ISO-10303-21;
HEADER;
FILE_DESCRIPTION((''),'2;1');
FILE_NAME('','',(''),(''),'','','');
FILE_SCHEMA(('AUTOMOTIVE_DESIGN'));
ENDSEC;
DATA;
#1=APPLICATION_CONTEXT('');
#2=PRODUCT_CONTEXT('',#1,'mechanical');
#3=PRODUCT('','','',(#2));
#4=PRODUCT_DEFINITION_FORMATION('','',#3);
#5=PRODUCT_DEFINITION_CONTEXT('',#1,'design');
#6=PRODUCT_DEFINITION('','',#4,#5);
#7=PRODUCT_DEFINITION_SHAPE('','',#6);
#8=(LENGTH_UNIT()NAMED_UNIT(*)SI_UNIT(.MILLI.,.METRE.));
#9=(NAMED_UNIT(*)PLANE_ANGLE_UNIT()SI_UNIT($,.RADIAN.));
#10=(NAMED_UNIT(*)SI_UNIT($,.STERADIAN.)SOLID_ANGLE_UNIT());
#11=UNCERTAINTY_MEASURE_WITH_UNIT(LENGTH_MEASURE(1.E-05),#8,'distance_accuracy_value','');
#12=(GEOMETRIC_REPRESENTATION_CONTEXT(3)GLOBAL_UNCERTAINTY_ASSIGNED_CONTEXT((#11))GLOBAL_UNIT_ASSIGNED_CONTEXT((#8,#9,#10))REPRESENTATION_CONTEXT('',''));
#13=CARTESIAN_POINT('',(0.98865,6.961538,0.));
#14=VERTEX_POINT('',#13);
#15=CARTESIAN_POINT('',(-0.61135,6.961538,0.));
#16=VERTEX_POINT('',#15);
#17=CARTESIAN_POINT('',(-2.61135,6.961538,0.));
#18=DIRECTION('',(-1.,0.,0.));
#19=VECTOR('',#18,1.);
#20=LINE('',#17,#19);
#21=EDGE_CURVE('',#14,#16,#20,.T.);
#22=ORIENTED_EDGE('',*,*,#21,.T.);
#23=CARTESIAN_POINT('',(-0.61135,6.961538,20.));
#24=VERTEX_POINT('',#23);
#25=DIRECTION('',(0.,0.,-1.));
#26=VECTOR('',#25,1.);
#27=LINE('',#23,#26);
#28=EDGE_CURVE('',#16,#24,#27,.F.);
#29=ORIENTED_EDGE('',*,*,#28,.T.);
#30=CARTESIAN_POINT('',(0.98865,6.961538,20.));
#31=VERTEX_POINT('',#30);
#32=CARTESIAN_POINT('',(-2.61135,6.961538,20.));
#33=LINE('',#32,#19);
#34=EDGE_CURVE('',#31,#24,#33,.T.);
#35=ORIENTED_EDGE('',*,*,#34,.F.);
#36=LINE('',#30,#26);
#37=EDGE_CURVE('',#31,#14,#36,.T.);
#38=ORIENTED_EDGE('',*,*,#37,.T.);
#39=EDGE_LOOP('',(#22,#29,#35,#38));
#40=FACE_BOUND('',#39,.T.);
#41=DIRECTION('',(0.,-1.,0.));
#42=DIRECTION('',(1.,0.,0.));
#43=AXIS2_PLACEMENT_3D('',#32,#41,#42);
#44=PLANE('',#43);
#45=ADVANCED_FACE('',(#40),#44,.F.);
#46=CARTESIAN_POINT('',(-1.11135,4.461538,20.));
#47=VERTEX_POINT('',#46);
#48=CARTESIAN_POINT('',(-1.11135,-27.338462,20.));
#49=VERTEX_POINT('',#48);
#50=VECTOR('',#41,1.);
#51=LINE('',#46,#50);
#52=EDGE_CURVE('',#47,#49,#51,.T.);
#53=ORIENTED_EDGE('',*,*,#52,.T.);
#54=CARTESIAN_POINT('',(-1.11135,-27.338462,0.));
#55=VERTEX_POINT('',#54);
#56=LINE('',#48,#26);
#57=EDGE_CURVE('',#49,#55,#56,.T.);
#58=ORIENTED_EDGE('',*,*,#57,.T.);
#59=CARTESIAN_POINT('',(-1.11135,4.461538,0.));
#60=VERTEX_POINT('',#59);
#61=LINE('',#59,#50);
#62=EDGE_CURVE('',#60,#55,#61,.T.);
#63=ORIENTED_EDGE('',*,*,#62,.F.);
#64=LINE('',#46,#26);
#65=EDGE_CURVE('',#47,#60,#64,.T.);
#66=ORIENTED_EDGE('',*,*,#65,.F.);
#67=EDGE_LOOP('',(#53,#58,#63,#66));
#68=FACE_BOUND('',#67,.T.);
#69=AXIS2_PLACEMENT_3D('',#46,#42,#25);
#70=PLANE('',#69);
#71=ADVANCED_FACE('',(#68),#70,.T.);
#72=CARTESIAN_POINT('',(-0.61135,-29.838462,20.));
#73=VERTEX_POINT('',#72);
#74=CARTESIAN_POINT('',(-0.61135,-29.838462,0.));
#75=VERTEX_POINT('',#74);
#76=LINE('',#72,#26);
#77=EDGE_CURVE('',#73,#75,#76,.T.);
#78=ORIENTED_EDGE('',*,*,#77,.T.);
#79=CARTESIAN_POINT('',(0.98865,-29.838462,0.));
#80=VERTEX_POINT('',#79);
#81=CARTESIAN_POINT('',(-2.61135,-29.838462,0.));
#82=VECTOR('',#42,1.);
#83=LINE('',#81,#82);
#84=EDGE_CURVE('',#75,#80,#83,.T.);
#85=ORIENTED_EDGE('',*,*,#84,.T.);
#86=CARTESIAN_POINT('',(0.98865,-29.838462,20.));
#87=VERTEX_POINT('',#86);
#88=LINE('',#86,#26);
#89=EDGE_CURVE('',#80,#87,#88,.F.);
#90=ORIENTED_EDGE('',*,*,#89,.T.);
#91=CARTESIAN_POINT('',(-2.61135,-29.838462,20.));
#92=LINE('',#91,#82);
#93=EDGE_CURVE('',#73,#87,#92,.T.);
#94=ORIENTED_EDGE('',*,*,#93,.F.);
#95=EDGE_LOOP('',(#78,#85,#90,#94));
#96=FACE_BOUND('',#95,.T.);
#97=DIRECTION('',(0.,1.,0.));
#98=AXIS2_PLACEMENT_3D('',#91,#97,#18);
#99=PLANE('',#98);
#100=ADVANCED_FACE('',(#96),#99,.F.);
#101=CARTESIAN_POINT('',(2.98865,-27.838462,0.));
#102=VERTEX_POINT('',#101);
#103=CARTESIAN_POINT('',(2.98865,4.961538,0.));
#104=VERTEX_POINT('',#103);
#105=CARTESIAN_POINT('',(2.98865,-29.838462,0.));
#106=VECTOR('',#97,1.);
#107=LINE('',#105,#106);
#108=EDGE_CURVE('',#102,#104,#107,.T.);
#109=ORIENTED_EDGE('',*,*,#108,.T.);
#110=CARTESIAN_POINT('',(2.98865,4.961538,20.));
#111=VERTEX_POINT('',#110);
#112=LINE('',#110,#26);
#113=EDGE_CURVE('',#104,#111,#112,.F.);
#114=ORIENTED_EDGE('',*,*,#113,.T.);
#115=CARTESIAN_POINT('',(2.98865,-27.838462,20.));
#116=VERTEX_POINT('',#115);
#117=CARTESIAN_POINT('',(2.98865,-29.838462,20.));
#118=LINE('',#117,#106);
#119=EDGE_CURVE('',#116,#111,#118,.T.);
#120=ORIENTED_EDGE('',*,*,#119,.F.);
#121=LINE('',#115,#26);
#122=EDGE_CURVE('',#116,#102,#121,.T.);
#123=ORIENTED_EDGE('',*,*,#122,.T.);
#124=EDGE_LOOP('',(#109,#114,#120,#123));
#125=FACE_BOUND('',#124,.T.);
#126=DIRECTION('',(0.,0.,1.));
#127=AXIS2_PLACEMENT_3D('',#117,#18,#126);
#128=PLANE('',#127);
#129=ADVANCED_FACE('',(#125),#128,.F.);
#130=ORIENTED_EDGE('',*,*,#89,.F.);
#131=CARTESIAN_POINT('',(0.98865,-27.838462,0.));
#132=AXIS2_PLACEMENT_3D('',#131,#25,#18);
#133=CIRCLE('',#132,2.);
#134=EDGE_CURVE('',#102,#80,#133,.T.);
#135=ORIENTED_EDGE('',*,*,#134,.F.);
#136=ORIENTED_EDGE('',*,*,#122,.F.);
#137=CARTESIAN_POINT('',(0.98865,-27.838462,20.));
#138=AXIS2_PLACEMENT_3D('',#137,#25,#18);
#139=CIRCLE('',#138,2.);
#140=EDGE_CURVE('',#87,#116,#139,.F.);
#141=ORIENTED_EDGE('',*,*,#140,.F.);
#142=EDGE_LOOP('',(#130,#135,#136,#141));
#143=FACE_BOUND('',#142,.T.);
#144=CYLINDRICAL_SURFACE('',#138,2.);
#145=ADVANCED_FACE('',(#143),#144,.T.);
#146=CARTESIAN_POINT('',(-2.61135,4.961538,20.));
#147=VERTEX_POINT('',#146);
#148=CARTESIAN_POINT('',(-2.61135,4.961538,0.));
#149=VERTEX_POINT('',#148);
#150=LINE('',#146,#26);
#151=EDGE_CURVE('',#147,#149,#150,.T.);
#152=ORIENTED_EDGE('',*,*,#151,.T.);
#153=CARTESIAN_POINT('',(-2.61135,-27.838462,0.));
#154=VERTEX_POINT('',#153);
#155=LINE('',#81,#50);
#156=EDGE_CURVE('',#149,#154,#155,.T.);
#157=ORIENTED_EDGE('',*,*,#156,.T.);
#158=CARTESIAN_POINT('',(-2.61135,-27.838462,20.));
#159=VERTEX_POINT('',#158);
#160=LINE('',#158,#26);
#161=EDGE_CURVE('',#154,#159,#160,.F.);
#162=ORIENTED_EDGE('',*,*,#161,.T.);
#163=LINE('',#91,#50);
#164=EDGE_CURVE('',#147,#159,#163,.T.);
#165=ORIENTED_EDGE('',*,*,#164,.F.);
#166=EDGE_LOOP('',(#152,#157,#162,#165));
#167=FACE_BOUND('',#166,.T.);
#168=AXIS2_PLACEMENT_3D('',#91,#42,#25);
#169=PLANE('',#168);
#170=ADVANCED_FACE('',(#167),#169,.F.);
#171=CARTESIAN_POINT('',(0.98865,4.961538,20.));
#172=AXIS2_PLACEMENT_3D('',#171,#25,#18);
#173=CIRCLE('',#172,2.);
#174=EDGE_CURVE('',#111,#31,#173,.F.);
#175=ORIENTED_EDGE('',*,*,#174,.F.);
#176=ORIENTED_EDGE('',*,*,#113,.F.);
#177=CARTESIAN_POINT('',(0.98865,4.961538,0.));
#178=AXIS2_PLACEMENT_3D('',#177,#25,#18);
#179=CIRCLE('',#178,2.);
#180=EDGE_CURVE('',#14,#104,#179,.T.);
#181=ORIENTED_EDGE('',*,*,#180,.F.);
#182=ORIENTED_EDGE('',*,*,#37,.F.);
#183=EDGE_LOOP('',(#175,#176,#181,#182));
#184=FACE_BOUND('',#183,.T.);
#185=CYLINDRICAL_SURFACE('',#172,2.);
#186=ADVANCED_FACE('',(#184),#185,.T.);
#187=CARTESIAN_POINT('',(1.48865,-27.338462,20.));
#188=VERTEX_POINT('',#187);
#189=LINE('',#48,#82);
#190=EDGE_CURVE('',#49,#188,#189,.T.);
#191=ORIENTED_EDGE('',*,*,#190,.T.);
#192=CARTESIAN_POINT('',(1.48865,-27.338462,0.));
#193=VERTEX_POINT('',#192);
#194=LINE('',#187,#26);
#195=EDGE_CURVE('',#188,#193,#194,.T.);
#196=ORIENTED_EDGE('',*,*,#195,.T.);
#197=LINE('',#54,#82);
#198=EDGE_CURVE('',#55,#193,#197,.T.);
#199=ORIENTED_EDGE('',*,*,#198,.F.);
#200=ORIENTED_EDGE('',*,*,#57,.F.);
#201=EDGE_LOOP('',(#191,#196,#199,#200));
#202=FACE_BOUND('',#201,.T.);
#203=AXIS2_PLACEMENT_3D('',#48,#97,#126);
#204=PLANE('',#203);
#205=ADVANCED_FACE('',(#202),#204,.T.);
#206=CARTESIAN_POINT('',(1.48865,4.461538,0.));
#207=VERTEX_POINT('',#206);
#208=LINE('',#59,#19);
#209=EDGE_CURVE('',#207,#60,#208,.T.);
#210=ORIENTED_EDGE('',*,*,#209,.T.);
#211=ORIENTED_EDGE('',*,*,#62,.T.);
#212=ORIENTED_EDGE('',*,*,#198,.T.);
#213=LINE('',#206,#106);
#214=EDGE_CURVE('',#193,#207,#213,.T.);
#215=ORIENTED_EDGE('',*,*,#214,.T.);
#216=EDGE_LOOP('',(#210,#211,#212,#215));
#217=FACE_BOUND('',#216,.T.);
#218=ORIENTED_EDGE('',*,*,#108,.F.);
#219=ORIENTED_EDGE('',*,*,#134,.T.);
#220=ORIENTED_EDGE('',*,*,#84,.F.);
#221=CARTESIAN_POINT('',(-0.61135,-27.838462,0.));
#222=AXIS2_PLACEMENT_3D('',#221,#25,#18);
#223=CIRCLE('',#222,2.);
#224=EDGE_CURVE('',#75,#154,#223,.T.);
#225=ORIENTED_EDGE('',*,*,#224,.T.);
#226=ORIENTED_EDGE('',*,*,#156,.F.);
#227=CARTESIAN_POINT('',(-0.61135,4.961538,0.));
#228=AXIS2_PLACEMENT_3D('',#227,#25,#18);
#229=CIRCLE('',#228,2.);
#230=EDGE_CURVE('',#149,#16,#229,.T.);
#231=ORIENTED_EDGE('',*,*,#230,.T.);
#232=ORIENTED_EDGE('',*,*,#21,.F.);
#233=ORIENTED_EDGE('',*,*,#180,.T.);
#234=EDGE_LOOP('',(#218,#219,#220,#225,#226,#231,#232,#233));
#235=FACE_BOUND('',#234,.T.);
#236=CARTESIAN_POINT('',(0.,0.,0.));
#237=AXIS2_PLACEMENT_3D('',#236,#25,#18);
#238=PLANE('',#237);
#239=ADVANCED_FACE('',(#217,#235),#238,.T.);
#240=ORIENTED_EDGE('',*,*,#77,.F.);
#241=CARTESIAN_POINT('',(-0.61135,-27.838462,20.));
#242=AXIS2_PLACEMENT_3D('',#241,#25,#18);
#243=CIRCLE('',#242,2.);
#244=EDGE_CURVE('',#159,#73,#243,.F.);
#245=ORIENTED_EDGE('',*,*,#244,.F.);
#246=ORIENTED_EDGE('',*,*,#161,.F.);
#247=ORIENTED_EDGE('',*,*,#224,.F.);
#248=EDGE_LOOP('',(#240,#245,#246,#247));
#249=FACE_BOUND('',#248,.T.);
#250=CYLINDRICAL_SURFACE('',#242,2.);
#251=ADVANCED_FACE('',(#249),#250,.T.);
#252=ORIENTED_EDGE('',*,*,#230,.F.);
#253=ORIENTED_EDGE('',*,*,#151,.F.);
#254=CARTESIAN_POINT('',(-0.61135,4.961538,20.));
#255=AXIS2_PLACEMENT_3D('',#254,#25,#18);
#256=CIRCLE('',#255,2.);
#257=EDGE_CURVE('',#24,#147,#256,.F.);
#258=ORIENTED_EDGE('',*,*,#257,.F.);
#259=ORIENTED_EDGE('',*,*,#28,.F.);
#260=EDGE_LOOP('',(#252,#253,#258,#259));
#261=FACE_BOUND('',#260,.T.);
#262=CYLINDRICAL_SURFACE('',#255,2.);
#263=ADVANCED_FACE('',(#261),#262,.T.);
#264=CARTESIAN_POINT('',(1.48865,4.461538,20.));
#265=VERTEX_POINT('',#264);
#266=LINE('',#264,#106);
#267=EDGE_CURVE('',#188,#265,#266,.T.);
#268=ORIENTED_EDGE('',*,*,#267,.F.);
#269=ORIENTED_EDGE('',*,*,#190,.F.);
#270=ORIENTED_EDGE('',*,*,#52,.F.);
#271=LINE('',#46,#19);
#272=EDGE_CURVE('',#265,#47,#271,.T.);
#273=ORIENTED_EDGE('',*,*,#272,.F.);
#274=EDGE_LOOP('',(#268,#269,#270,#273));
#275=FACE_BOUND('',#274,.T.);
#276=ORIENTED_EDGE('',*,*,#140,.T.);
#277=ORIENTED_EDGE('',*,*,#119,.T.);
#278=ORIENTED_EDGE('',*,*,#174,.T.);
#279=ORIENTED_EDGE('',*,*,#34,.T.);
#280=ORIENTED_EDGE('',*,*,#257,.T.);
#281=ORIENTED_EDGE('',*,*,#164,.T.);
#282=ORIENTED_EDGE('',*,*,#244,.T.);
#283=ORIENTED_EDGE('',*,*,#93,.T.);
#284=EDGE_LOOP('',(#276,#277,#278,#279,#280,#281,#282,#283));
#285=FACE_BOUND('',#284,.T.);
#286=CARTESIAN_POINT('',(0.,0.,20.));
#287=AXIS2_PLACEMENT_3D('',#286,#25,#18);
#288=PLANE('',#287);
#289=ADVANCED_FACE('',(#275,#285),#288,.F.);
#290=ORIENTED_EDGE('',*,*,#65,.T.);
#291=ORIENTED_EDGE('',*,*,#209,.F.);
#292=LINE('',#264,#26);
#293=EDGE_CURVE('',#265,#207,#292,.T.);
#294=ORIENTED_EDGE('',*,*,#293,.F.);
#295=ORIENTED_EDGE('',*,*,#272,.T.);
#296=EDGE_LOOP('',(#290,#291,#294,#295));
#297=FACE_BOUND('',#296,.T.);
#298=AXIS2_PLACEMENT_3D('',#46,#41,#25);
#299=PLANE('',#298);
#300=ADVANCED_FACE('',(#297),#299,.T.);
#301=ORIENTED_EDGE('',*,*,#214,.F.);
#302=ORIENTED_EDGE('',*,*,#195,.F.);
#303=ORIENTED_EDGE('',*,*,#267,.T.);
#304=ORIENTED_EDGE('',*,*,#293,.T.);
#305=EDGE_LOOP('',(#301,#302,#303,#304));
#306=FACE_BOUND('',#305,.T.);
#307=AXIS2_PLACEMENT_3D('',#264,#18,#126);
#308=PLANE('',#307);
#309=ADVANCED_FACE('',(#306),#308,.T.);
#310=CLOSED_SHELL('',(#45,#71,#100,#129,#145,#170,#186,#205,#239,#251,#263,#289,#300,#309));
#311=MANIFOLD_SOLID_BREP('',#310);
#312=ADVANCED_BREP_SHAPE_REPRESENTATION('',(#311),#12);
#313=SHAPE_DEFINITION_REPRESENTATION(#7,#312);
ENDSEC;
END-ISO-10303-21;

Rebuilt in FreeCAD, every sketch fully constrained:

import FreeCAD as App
import Part
import Sketcher
from FreeCAD import Vector


def edges_at(feature, points):
    """Names of the edges that pass closest to the given points."""
    edges = feature.Shape.Edges
    near = lambda p: min(range(len(edges)), key=lambda i: edges[i].distToShape(Part.Vertex(*p))[0])
    return sorted({f"Edge{near(p) + 1}" for p in points})


def add_polygon(sketch, points):
    """Adds a closed chain of lines whose ends are joined by coincident constraints."""
    first, n = sketch.GeometryCount, len(points)
    for a, b in zip(points, points[1:] + points[:1]):
        sketch.addGeometry(Part.LineSegment(App.Vector(*a, 0), App.Vector(*b, 0)), False)
    for i in range(n):
        sketch.addConstraint(Sketcher.Constraint("Coincident", first + i, 2, first + (i + 1) % n, 1))

doc = App.newDocument("Part")
body = doc.addObject("PartDesign::Body", "Body")

# Sketch on XY plane
sketch1 = doc.addObject("Sketcher::SketchObject", "Sketch")
body.addObject(sketch1)
sketch1.AttachmentSupport = (doc.XY_Plane, [""])
sketch1.MapMode = "FlatFace"
add_polygon(sketch1, [(-2.6, 7), (-2.6, -29.8), (3, -29.8), (3, 7)])  # lines 0-3
add_polygon(sketch1, [(1.5, -27.3), (-1.1, -27.3), (-1.1, 4.5), (1.5, 4.5)])  # lines 4-7
sketch1.addConstraint(Sketcher.Constraint("Vertical", 0))
sketch1.addConstraint(Sketcher.Constraint("Horizontal", 1))
sketch1.addConstraint(Sketcher.Constraint("Vertical", 2))
sketch1.addConstraint(Sketcher.Constraint("Horizontal", 3))
sketch1.addConstraint(Sketcher.Constraint("Horizontal", 4))
sketch1.addConstraint(Sketcher.Constraint("Vertical", 5))
sketch1.addConstraint(Sketcher.Constraint("Horizontal", 6))
sketch1.addConstraint(Sketcher.Constraint("Vertical", 7))
sketch1.addConstraint(Sketcher.Constraint("DistanceX", 1, 1, 1, 2, 5.6))
sketch1.addConstraint(Sketcher.Constraint("DistanceX", 4, 2, 4, 1, 2.6))
sketch1.addConstraint(Sketcher.Constraint("DistanceY", 0, 2, 0, 1, 36.8))
sketch1.addConstraint(Sketcher.Constraint("DistanceY", 5, 1, 5, 2, 31.8))
sketch1.addConstraint(Sketcher.Constraint("DistanceX", 0, 2, 4, 2, 1.5))
sketch1.addConstraint(Sketcher.Constraint("DistanceY", 0, 2, 4, 2, 2.5))
sketch1.addConstraint(Sketcher.Constraint("DistanceX", 0, 2, -1, 1, 2.61135))
sketch1.addConstraint(Sketcher.Constraint("DistanceY", 0, 2, -1, 1, 29.838462))
pad1 = doc.addObject("PartDesign::Pad", "Pad")
body.addObject(pad1)
pad1.Profile = sketch1
pad1.Length = 20
doc.recompute()

fillet = doc.addObject("PartDesign::Fillet", "Fillet")
body.addObject(fillet)
fillet.Base = (pad1, edges_at(pad1, [
    (-2.611, 6.962, 10),
    (2.989, 6.962, 10),
    (2.989, -29.838, 10),
    (-2.611, -29.838, 10),
]))
fillet.Radius = 2

doc.recompute()
